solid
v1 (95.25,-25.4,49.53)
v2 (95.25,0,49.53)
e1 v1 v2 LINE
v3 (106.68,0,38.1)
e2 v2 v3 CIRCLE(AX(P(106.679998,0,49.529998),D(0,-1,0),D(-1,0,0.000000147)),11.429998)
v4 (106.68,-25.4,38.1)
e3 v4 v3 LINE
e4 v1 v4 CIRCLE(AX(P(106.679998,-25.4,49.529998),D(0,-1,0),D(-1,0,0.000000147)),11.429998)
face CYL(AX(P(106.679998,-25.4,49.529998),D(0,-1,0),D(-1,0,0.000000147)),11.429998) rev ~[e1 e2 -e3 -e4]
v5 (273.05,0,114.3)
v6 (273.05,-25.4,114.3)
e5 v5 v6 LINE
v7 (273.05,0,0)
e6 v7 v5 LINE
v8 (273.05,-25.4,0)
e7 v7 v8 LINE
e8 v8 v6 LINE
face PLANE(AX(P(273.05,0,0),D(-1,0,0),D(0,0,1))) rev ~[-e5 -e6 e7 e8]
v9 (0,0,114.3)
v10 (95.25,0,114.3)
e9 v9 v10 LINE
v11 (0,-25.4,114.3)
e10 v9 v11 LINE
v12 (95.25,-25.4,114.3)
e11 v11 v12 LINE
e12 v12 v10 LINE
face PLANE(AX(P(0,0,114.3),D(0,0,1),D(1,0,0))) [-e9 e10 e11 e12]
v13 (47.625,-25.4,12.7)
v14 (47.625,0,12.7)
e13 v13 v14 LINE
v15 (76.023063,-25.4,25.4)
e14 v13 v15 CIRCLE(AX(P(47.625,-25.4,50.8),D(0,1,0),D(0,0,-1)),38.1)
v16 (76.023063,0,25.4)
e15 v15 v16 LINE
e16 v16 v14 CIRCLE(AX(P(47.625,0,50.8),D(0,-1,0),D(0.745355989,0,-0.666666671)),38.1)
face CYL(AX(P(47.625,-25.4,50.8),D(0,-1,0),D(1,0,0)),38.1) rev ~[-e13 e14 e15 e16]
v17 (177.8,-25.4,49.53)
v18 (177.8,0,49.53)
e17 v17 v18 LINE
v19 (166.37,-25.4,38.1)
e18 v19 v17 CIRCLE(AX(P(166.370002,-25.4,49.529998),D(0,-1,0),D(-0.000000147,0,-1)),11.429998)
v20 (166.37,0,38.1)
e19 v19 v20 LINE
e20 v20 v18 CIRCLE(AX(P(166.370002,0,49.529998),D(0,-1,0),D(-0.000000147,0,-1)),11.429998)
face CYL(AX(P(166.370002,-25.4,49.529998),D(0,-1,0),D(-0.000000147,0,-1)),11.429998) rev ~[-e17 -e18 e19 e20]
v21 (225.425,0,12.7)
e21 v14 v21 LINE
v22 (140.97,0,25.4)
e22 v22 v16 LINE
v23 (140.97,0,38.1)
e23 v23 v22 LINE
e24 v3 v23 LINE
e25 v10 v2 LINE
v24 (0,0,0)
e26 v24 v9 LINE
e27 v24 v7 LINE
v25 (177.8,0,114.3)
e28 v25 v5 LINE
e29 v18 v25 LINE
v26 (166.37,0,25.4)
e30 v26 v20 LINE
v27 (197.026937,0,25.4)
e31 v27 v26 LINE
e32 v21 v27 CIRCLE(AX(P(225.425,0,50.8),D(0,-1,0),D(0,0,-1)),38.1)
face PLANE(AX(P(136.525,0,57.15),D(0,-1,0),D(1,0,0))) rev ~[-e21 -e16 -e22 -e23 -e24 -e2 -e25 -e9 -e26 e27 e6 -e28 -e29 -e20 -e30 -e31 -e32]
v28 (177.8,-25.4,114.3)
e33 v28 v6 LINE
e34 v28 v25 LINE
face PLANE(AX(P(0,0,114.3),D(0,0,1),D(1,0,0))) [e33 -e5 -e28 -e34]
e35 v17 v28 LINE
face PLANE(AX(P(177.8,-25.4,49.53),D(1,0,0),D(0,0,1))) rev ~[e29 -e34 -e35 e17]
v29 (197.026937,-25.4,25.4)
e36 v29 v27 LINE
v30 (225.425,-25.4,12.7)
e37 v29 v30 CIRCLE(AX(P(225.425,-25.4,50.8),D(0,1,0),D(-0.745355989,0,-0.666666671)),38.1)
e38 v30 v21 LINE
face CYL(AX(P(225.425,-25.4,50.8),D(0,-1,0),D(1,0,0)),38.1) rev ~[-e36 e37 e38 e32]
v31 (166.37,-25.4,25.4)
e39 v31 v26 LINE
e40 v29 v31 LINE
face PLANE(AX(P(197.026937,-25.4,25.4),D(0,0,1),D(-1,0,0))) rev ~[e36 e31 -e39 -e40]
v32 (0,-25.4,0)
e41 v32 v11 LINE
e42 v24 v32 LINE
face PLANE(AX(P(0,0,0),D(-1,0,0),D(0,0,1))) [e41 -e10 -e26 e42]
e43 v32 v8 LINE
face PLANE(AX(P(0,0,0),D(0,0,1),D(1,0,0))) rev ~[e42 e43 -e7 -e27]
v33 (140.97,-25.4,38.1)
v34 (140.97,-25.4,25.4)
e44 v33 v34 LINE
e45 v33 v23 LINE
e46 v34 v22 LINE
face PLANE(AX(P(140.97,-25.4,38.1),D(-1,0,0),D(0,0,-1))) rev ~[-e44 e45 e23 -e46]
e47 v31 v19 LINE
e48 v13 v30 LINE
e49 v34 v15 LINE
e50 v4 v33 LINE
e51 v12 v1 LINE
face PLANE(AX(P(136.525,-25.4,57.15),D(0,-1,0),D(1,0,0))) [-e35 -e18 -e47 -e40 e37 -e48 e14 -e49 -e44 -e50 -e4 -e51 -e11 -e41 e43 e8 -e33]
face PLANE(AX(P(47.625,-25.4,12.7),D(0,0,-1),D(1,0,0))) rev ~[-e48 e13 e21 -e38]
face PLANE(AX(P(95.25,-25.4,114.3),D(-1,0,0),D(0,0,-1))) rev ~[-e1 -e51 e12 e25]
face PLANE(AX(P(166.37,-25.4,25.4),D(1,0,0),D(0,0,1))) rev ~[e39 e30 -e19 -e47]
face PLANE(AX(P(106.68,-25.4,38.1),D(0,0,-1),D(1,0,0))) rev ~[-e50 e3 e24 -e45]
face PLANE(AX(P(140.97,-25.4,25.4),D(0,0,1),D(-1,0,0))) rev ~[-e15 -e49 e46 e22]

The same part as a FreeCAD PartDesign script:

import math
import FreeCAD as App
import Part
import Sketcher
from FreeCAD import Vector
Q = App.Units.Quantity

doc = App.newDocument("Part")
params = doc.addObject("Spreadsheet::Sheet", "Params")
for row, (alias, value) in enumerate([
    ("sketch1_height", "4.5 in"),
    ("sketch1_width", "10.75 in"),
    ("pad1_length", "1 in"),
    ("sketch2_diameter", "3 in"),
    ("pocket1_length", "1 in"),
    ("sketch3_radius", "0.4499999 in"),
    ("sketch3_width", "3.25 in"),
    ("pocket2_length", "1 in"),
    ("sketch4_width", "1 in"),
    ("sketch4_width2", "7 in"),
    ("sketch4_height", "0.5 in"),
    ("pocket3_length", "1 in"),
], start=1):
    params.set(f"A{row}", alias)
    params.set(f"B{row}", "=" + value)
    params.setAlias(f"B{row}", alias)

body = doc.addObject("PartDesign::Body", "Body")

sketch1 = body.newObject("Sketcher::SketchObject", "Sketch")
sketch1.AttachmentSupport = (doc.getObject("XZ_Plane"), [""])
sketch1.MapMode = "FlatFace"
sketch1.addGeometry([
    Part.LineSegment(Vector(0, 114.3, 0), Vector(0, 0, 0)),
    Part.LineSegment(Vector(0, 0, 0), Vector(273.05, 0, 0)),
    Part.LineSegment(Vector(273.05, 0, 0), Vector(273.05, 114.3, 0)),
    Part.LineSegment(Vector(273.05, 114.3, 0), Vector(0, 114.3, 0)),
], False)
sketch1.addConstraint([
    Sketcher.Constraint("Coincident", 0, 2, 1, 1),
    Sketcher.Constraint("Coincident", 1, 2, 2, 1),
    Sketcher.Constraint("Coincident", 2, 2, 3, 1),
    Sketcher.Constraint("Coincident", 3, 2, 0, 1),
    Sketcher.Constraint("Vertical", 0),
    Sketcher.Constraint("Horizontal", 1),
    Sketcher.Constraint("Vertical", 2),
    Sketcher.Constraint("Horizontal", 3),
    Sketcher.Constraint("Coincident", 0, 2, -1, 1),
    Sketcher.Constraint("DistanceY", 0, 2, 0, 1, Q("4.5 in")),
    Sketcher.Constraint("DistanceX", 1, 1, 1, 2, Q("10.75 in")),
])
sketch1.setExpression("Constraints[9]", "Params.sketch1_height")
sketch1.setExpression("Constraints[10]", "Params.sketch1_width")
pad1 = body.newObject("PartDesign::Pad", "Pad")
pad1.Profile = sketch1
pad1.setExpression("Length", "Params.pad1_length")

sketch2 = body.newObject("Sketcher::SketchObject", "Sketch001")
sketch2.AttachmentSupport = (doc.getObject("XZ_Plane"), [""])
sketch2.MapMode = "FlatFace"
sketch2.AttachmentOffset = App.Placement(Vector(0, 0, 1 * 25.4), App.Rotation())
sketch2.addGeometry([
    Part.Circle(Vector(47.625, 50.8, 0), Vector(0, 0, 1), 38.1),
    Part.Circle(Vector(225.425, 50.8, 0), Vector(0, 0, 1), 38.1),
], False)
sketch2.addConstraint([
    Sketcher.Constraint("Equal", 0, 1),
    Sketcher.Constraint("Horizontal", 0, 3, 1, 3),
    Sketcher.Constraint("Diameter", 0, Q("3 in")),
    Sketcher.Constraint("DistanceY", -1, 1, 0, 3, Q("2 in")),
    Sketcher.Constraint("DistanceX", 0, 3, 1, 3, Q("7 in")),
    Sketcher.Constraint("DistanceX", -1, 1, 0, 3, Q("1.875 in")),
])
sketch2.setExpression("Constraints[2]", "Params.sketch2_diameter")
pocket1 = body.newObject("PartDesign::Pocket", "Pocket")
pocket1.Profile = sketch2
pocket1.setExpression("Length", "Params.pocket1_length")

sketch3 = body.newObject("Sketcher::SketchObject", "Sketch002")
sketch3.AttachmentSupport = (doc.getObject("XZ_Plane"), [""])
sketch3.MapMode = "FlatFace"
sketch3.AttachmentOffset = App.Placement(Vector(0, 0, 1 * 25.4), App.Rotation())
sketch3.addGeometry([
    Part.LineSegment(Vector(177.8, 114.3, 0), Vector(95.25, 114.3, 0)),
    Part.LineSegment(Vector(95.25, 114.3, 0), Vector(95.25, 49.53, 0)),
    Part.ArcOfCircle(Part.Circle(Vector(106.679998, 49.529998, 0), Vector(0, 0, 1), 11.429998), math.radians(179.999992), math.radians(270.000008)),
    Part.LineSegment(Vector(106.68, 38.1, 0), Vector(166.37, 38.1, 0)),
    Part.ArcOfCircle(Part.Circle(Vector(166.370002, 49.529998, 0), Vector(0, 0, 1), 11.429998), math.radians(-90.000008), math.radians(0.000008)),
    Part.LineSegment(Vector(177.8, 49.53, 0), Vector(177.8, 114.3, 0)),
], False)
sketch3.addConstraint([
    Sketcher.Constraint("Coincident", 0, 2, 1, 1),
    Sketcher.Constraint("Tangent", 1, 2, 2, 1),
    Sketcher.Constraint("Tangent", 2, 2, 3, 1),
    Sketcher.Constraint("Tangent", 3, 2, 4, 1),
    Sketcher.Constraint("Tangent", 4, 2, 5, 1),
    Sketcher.Constraint("Coincident", 5, 2, 0, 1),
    Sketcher.Constraint("Horizontal", 0),
    Sketcher.Constraint("Vertical", 1),
    Sketcher.Constraint("Horizontal", 3),
    Sketcher.Constraint("Vertical", 5),
    Sketcher.Constraint("Equal", 2, 4),
    Sketcher.Constraint("Radius", 2, Q("0.4499999 in")),
    Sketcher.Constraint("DistanceX", -1, 1, 4, 2, Q("7 in")),
    Sketcher.Constraint("DistanceY", 2, 2, 0, 2, Q("3 in")),
    Sketcher.Constraint("DistanceX", 0, 2, 0, 1, Q("3.25 in")),
    Sketcher.Constraint("DistanceY", -1, 1, 0, 2, Q("4.5 in")),
])
sketch3.setExpression("Constraints[11]", "Params.sketch3_radius")
sketch3.setExpression("Constraints[14]", "Params.sketch3_width")
pocket2 = body.newObject("PartDesign::Pocket", "Pocket001")
pocket2.Profile = sketch3
pocket2.setExpression("Length", "Params.pocket2_length")

sketch4 = body.newObject("Sketcher::SketchObject", "Sketch003")
sketch4.AttachmentSupport = (doc.getObject("XZ_Plane"), [""])
sketch4.MapMode = "FlatFace"
sketch4.AttachmentOffset = App.Placement(Vector(0, 0, 1 * 25.4), App.Rotation())
sketch4.addGeometry([
    Part.LineSegment(Vector(166.37, 38.1, 0), Vector(140.97, 38.1, 0)),
    Part.LineSegment(Vector(140.97, 38.1, 0), Vector(140.97, 25.4, 0)),
    Part.LineSegment(Vector(140.97, 25.4, 0), Vector(76.023063, 25.4, 0)),
    Part.LineSegment(Vector(76.023063, 25.4, 0), Vector(47.625, 12.7, 0)),
    Part.LineSegment(Vector(47.625, 12.7, 0), Vector(225.425, 12.7, 0)),
    Part.LineSegment(Vector(225.425, 12.7, 0), Vector(197.026937, 25.4, 0)),
    Part.LineSegment(Vector(197.026937, 25.4, 0), Vector(166.37, 25.4, 0)),
    Part.LineSegment(Vector(166.37, 25.4, 0), Vector(166.37, 38.1, 0)),
], False)
sketch4.addConstraint([
    Sketcher.Constraint("Coincident", 0, 2, 1, 1),
    Sketcher.Constraint("Coincident", 1, 2, 2, 1),
    Sketcher.Constraint("Coincident", 2, 2, 3, 1),
    Sketcher.Constraint("Coincident", 3, 2, 4, 1),
    Sketcher.Constraint("Coincident", 4, 2, 5, 1),
    Sketcher.Constraint("Coincident", 5, 2, 6, 1),
    Sketcher.Constraint("Coincident", 6, 2, 7, 1),
    Sketcher.Constraint("Coincident", 7, 2, 0, 1),
    Sketcher.Constraint("Horizontal", 0),
    Sketcher.Constraint("Vertical", 1),
    Sketcher.Constraint("Horizontal", 2),
    Sketcher.Constraint("Horizontal", 4),
    Sketcher.Constraint("Horizontal", 6),
    Sketcher.Constraint("Vertical", 7),
    Sketcher.Constraint("Horizontal", 2, 2, 5, 2),
    Sketcher.Constraint("Equal", 3, 5),
    Sketcher.Constraint("DistanceX", 0, 2, 0, 1, Q("1 in")),
    Sketcher.Constraint("DistanceX", 4, 1, 4, 2, Q("7 in")),
    Sketcher.Constraint("DistanceY", 1, 2, 1, 1, Q("0.5 in")),
    Sketcher.Constraint("DistanceY", -1, 1, 1, 2, Q("1 in")),
    Sketcher.Constraint("DistanceY", 3, 2, 0, 2, Q("1 in")),
    Sketcher.Constraint("DistanceX", -1, 1, 0, 2, Q("5.55 in")),
    Sketcher.Constraint("DistanceX", -1, 1, 3, 2, Q("1.875 in")),
    Sketcher.Constraint("Distance", 3, Q("31.108519 mm")),
])
sketch4.setExpression("Constraints[16]", "Params.sketch4_width")
sketch4.setExpression("Constraints[17]", "Params.sketch4_width2")
sketch4.setExpression("Constraints[18]", "Params.sketch4_height")
pocket3 = body.newObject("PartDesign::Pocket", "Pocket002")
pocket3.Profile = sketch4
pocket3.setExpression("Length", "Params.pocket3_length")

doc.recompute()
